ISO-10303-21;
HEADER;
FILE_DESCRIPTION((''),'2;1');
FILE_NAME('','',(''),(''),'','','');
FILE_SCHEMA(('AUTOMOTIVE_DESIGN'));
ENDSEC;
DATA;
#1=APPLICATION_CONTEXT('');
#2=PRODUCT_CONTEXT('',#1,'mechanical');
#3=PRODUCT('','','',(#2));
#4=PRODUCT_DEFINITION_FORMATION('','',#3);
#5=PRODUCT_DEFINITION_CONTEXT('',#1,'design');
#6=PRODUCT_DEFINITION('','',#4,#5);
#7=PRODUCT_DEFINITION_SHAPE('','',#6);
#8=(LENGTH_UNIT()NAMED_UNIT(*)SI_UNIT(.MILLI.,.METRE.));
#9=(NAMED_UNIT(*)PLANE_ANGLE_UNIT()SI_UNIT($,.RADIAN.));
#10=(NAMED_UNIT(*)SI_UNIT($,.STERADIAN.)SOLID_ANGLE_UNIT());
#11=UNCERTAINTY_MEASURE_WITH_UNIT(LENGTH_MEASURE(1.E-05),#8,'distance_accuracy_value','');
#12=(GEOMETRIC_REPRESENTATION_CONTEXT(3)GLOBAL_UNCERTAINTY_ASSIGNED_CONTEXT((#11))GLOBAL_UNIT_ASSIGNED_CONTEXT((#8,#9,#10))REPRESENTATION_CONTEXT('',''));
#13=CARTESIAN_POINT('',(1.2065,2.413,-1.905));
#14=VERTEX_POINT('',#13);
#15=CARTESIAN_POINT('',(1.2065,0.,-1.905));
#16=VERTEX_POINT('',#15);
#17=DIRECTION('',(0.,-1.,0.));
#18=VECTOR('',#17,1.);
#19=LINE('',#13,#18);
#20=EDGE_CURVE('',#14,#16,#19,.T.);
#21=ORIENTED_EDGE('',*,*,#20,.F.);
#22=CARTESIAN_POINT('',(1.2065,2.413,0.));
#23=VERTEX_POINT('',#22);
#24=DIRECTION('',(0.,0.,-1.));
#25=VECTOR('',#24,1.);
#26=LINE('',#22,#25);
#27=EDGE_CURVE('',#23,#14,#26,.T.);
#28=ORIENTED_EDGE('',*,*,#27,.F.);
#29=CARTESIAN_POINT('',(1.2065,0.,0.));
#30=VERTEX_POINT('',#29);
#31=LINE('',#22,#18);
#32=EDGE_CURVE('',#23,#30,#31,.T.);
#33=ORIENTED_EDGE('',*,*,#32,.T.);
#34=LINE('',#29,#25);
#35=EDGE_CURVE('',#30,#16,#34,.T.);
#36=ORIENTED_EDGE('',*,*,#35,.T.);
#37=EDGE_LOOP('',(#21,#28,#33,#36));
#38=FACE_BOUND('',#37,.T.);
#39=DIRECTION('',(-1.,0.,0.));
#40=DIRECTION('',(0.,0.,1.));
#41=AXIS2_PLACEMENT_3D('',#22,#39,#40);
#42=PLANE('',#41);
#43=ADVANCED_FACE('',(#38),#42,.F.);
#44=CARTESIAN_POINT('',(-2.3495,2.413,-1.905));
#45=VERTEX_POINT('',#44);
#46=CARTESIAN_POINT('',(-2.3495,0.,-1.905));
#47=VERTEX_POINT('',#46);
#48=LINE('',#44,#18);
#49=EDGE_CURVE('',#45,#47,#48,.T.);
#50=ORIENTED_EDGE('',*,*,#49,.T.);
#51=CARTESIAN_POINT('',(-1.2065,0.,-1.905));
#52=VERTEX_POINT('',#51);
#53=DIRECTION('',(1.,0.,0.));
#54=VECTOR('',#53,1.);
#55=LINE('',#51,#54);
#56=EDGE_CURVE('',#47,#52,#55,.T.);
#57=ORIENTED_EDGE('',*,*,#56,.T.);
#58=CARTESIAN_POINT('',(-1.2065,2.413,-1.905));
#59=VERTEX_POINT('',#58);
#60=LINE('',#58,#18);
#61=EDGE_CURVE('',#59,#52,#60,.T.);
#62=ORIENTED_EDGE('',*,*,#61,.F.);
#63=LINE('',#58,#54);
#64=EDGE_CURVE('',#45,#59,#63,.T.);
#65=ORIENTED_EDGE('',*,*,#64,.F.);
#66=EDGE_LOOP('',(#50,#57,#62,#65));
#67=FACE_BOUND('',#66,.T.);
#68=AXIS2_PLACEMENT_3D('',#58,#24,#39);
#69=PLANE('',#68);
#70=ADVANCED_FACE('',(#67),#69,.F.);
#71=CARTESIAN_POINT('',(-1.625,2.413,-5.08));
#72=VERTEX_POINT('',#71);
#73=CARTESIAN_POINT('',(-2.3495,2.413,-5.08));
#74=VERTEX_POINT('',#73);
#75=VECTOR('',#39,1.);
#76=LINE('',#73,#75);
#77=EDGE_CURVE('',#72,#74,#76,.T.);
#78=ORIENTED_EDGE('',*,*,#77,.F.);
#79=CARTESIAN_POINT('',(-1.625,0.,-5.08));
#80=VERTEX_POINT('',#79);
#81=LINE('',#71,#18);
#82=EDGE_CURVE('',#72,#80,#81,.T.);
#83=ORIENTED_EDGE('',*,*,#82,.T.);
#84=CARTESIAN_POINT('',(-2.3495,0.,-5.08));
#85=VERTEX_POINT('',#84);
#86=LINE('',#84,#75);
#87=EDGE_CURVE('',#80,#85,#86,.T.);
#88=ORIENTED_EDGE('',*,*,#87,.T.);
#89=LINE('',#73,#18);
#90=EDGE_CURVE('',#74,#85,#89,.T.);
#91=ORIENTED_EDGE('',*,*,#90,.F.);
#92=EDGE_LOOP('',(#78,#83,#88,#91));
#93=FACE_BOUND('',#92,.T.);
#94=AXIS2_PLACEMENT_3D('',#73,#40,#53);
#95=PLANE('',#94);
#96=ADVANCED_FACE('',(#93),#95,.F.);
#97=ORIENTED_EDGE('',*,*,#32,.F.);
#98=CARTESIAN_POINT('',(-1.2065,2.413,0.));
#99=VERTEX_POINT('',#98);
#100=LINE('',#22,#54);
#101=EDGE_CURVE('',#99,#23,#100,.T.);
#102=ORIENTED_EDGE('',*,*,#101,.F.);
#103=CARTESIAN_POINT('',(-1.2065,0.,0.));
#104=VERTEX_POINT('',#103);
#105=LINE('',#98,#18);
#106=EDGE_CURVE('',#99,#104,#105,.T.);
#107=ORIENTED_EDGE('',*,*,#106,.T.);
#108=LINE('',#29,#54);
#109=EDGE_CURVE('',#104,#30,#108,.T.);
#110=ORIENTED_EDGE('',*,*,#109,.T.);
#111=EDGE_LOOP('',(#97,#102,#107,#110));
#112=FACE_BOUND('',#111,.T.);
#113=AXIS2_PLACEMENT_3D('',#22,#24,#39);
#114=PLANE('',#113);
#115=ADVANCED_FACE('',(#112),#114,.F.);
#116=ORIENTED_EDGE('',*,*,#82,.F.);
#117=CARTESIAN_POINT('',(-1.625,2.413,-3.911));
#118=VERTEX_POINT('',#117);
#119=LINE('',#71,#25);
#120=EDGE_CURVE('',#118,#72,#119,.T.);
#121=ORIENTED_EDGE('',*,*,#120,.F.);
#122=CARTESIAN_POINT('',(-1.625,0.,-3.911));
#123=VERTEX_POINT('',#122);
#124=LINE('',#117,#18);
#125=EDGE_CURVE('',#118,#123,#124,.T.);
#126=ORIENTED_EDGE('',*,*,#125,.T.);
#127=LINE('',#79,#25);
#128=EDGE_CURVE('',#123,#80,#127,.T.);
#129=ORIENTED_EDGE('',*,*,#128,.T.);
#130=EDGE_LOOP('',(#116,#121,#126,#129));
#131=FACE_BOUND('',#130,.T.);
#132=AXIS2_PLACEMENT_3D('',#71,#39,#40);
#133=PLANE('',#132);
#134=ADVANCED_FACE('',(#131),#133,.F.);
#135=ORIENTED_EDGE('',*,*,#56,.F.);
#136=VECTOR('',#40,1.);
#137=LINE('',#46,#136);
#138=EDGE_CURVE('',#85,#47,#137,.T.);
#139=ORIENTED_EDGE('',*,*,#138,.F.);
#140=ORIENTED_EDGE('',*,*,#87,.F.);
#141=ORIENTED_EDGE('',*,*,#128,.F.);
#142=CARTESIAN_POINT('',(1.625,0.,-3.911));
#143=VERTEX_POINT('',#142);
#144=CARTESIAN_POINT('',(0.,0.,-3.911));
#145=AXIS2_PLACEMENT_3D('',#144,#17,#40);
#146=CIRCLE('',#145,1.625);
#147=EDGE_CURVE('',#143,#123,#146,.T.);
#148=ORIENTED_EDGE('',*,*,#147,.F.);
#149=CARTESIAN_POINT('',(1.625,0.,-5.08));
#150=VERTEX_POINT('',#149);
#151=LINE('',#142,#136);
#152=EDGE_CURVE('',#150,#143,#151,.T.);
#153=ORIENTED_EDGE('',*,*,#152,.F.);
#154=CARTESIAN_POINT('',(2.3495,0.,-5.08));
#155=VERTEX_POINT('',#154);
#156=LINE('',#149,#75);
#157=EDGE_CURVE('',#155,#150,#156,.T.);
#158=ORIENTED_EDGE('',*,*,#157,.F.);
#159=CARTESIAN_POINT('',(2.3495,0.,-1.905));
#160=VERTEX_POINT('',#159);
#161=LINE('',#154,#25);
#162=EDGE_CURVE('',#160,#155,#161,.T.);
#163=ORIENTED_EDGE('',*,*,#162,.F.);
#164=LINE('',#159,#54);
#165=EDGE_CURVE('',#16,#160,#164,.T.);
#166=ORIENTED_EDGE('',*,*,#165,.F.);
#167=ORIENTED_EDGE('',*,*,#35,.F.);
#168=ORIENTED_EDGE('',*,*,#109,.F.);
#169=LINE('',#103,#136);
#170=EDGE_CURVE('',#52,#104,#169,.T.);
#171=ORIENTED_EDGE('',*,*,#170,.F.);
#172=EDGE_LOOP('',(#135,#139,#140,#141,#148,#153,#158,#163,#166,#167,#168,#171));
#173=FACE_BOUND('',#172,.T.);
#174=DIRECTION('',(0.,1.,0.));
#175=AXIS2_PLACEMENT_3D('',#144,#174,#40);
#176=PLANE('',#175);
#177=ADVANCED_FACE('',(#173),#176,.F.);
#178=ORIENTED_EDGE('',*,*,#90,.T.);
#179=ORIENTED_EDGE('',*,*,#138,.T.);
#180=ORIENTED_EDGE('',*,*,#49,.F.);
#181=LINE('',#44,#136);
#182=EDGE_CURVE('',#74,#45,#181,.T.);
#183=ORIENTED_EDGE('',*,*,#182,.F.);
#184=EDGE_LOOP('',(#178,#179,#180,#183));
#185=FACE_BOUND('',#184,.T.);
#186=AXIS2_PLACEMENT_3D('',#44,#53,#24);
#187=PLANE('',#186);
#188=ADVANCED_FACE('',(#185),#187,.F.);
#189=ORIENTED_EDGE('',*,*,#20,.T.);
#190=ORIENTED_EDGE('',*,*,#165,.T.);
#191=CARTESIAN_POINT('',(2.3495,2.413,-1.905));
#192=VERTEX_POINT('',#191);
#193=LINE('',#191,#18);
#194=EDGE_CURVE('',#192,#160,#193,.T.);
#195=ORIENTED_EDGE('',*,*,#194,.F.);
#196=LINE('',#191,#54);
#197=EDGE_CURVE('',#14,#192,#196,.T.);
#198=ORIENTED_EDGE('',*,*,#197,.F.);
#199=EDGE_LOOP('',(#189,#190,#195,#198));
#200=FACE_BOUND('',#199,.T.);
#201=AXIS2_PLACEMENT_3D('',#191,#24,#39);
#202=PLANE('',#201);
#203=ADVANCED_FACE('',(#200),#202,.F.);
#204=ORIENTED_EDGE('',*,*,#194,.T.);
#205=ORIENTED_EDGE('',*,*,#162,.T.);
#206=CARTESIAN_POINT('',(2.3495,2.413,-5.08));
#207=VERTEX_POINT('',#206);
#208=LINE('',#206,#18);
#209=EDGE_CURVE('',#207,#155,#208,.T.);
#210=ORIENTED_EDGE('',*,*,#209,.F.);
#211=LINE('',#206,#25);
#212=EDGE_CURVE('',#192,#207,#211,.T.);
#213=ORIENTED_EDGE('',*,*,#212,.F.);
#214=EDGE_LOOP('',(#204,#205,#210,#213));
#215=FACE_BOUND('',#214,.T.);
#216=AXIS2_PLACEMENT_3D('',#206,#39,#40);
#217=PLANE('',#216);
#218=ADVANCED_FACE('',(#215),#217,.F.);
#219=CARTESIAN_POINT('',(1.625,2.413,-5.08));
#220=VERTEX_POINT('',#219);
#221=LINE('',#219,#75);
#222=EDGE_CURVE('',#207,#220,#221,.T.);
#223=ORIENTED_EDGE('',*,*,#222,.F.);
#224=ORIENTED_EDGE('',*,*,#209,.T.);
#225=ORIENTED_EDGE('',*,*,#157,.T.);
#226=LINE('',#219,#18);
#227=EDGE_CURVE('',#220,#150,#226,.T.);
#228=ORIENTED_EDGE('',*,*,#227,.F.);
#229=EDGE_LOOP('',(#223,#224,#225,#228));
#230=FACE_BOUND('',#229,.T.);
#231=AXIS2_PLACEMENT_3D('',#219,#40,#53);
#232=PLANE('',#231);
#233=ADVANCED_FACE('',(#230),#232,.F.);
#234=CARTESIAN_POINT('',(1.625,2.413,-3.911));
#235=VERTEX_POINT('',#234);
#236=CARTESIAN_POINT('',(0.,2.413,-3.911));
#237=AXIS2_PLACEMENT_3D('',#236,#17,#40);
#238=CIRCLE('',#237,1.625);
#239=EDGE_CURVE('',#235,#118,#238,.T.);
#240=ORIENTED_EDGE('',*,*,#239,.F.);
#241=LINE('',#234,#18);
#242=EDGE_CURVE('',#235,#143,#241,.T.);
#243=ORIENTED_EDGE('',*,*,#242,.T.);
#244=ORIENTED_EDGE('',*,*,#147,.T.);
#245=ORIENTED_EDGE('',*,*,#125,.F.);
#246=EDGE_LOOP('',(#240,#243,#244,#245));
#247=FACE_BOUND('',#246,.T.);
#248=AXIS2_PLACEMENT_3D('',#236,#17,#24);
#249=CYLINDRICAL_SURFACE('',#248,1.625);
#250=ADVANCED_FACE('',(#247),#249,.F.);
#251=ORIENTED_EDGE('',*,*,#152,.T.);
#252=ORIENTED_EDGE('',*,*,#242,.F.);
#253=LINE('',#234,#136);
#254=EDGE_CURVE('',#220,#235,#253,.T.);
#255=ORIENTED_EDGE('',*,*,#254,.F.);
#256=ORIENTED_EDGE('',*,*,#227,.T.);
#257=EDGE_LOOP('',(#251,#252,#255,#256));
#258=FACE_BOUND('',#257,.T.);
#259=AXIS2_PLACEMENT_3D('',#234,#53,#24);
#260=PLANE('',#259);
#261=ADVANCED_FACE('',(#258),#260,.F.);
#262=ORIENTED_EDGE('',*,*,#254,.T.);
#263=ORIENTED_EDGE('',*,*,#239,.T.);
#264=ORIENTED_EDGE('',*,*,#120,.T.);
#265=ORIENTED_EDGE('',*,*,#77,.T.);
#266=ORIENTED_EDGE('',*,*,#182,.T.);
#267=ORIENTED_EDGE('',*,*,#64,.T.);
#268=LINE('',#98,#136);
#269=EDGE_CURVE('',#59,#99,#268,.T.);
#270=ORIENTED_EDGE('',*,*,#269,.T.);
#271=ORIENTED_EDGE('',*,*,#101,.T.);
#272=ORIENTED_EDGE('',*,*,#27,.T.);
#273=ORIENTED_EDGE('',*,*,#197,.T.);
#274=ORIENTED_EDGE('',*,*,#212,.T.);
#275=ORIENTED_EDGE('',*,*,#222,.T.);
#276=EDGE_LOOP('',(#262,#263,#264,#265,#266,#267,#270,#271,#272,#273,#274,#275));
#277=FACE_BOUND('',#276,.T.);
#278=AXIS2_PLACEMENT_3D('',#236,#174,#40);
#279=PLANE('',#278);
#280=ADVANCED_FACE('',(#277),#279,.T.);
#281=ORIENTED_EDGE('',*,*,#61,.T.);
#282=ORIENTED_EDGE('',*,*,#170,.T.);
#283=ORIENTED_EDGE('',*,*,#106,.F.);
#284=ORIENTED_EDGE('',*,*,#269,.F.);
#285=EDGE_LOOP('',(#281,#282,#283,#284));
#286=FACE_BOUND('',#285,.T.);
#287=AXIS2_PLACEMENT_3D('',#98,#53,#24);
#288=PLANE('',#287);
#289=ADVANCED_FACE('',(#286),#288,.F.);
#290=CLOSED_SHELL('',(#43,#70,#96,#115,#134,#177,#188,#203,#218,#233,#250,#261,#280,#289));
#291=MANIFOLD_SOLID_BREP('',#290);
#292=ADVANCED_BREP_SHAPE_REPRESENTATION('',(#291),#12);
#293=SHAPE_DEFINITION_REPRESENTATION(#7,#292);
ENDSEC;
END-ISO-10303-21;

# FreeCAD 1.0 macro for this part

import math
import FreeCAD as App
import Part
import Sketcher

V = App.Vector
Q = App.Units.Quantity

doc = App.newDocument("Part")
body = doc.addObject("PartDesign::Body", "Body")

# Sketch on XZ plane
sketch1 = doc.addObject("Sketcher::SketchObject", "Sketch")
body.addObject(sketch1)
sketch1.AttachmentSupport = (doc.XZ_Plane, [""])
sketch1.MapMode = "FlatFace"
sketch1.addGeometry([
    Part.LineSegment(V(-1.2, 0, 0), V(1.2, 0, 0)),  # 0
    Part.LineSegment(V(1.2, 0, 0), V(1.2, -1.9, 0)),  # 1
    Part.LineSegment(V(1.2, -1.9, 0), V(2.3, -1.9, 0)),  # 2
    Part.LineSegment(V(2.3, -1.9, 0), V(2.3, -5.1, 0)),  # 3
    Part.LineSegment(V(2.3, -5.1, 0), V(1.6, -5.1, 0)),  # 4
    Part.LineSegment(V(1.6, -5.1, 0), V(1.6, -3.9, 0)),  # 5
    Part.ArcOfCircle(Part.Circle(V(0, -3.9, 0), V(0, 0, 1), 1.6), math.radians(0), math.radians(180)),  # 6
    Part.LineSegment(V(-1.6, -3.9, 0), V(-1.6, -5.1, 0)),  # 7
    Part.LineSegment(V(-1.6, -5.1, 0), V(-2.3, -5.1, 0)),  # 8
    Part.LineSegment(V(-2.3, -5.1, 0), V(-2.3, -1.9, 0)),  # 9
    Part.LineSegment(V(-2.3, -1.9, 0), V(-1.2, -1.9, 0)),  # 10
    Part.LineSegment(V(-1.2, -1.9, 0), V(-1.2, 0, 0)),  # 11
], False)
sketch1.addConstraint([
    Sketcher.Constraint("Coincident", 0, 2, 1, 1),
    Sketcher.Constraint("Coincident", 1, 2, 2, 1),
    Sketcher.Constraint("Coincident", 2, 2, 3, 1),
    Sketcher.Constraint("Coincident", 3, 2, 4, 1),
    Sketcher.Constraint("Coincident", 4, 2, 5, 1),
    Sketcher.Constraint("Tangent", 5, 2, 6, 1),
    Sketcher.Constraint("Tangent", 6, 2, 7, 1),
    Sketcher.Constraint("Coincident", 7, 2, 8, 1),
    Sketcher.Constraint("Coincident", 8, 2, 9, 1),
    Sketcher.Constraint("Coincident", 9, 2, 10, 1),
    Sketcher.Constraint("Coincident", 10, 2, 11, 1),
    Sketcher.Constraint("Coincident", 11, 2, 0, 1),
    Sketcher.Constraint("Horizontal", 0),
    Sketcher.Constraint("Vertical", 1),
    Sketcher.Constraint("Horizontal", 2),
    Sketcher.Constraint("Vertical", 3),
    Sketcher.Constraint("Horizontal", 4),
    Sketcher.Constraint("Vertical", 5),
    Sketcher.Constraint("Vertical", 7),
    Sketcher.Constraint("Horizontal", 8),
    Sketcher.Constraint("Vertical", 9),
    Sketcher.Constraint("Horizontal", 10),
    Sketcher.Constraint("Vertical", 11),
    Sketcher.Constraint("Symmetric", 0, 2, 11, 2, -1, 1),
    Sketcher.Constraint("Symmetric", 4, 2, 7, 2, -2),
    Sketcher.Constraint("Symmetric", 2, 2, 9, 2, -2),
    Sketcher.Constraint("DistanceY", 3, 2, -1, 1, Q("0.2 in")),
    Sketcher.Constraint("DistanceX", 0, 1, 0, 2, Q("0.095 in")),
    Sketcher.Constraint("DistanceX", 2, 1, 2, 2, Q("0.045 in")),
    Sketcher.Constraint("DistanceY", 1, 2, 1, 1, Q("0.075 in")),
    Sketcher.Constraint("Radius", 6, 1.625),
    Sketcher.Constraint("DistanceY", 5, 1, 5, 2, 1.169),
])
pad1 = doc.addObject("PartDesign::Pad", "Pad")
body.addObject(pad1)
pad1.Profile = sketch1
pad1.Length = Q("0.095 in")
pad1.Reversed = True

doc.recompute()
